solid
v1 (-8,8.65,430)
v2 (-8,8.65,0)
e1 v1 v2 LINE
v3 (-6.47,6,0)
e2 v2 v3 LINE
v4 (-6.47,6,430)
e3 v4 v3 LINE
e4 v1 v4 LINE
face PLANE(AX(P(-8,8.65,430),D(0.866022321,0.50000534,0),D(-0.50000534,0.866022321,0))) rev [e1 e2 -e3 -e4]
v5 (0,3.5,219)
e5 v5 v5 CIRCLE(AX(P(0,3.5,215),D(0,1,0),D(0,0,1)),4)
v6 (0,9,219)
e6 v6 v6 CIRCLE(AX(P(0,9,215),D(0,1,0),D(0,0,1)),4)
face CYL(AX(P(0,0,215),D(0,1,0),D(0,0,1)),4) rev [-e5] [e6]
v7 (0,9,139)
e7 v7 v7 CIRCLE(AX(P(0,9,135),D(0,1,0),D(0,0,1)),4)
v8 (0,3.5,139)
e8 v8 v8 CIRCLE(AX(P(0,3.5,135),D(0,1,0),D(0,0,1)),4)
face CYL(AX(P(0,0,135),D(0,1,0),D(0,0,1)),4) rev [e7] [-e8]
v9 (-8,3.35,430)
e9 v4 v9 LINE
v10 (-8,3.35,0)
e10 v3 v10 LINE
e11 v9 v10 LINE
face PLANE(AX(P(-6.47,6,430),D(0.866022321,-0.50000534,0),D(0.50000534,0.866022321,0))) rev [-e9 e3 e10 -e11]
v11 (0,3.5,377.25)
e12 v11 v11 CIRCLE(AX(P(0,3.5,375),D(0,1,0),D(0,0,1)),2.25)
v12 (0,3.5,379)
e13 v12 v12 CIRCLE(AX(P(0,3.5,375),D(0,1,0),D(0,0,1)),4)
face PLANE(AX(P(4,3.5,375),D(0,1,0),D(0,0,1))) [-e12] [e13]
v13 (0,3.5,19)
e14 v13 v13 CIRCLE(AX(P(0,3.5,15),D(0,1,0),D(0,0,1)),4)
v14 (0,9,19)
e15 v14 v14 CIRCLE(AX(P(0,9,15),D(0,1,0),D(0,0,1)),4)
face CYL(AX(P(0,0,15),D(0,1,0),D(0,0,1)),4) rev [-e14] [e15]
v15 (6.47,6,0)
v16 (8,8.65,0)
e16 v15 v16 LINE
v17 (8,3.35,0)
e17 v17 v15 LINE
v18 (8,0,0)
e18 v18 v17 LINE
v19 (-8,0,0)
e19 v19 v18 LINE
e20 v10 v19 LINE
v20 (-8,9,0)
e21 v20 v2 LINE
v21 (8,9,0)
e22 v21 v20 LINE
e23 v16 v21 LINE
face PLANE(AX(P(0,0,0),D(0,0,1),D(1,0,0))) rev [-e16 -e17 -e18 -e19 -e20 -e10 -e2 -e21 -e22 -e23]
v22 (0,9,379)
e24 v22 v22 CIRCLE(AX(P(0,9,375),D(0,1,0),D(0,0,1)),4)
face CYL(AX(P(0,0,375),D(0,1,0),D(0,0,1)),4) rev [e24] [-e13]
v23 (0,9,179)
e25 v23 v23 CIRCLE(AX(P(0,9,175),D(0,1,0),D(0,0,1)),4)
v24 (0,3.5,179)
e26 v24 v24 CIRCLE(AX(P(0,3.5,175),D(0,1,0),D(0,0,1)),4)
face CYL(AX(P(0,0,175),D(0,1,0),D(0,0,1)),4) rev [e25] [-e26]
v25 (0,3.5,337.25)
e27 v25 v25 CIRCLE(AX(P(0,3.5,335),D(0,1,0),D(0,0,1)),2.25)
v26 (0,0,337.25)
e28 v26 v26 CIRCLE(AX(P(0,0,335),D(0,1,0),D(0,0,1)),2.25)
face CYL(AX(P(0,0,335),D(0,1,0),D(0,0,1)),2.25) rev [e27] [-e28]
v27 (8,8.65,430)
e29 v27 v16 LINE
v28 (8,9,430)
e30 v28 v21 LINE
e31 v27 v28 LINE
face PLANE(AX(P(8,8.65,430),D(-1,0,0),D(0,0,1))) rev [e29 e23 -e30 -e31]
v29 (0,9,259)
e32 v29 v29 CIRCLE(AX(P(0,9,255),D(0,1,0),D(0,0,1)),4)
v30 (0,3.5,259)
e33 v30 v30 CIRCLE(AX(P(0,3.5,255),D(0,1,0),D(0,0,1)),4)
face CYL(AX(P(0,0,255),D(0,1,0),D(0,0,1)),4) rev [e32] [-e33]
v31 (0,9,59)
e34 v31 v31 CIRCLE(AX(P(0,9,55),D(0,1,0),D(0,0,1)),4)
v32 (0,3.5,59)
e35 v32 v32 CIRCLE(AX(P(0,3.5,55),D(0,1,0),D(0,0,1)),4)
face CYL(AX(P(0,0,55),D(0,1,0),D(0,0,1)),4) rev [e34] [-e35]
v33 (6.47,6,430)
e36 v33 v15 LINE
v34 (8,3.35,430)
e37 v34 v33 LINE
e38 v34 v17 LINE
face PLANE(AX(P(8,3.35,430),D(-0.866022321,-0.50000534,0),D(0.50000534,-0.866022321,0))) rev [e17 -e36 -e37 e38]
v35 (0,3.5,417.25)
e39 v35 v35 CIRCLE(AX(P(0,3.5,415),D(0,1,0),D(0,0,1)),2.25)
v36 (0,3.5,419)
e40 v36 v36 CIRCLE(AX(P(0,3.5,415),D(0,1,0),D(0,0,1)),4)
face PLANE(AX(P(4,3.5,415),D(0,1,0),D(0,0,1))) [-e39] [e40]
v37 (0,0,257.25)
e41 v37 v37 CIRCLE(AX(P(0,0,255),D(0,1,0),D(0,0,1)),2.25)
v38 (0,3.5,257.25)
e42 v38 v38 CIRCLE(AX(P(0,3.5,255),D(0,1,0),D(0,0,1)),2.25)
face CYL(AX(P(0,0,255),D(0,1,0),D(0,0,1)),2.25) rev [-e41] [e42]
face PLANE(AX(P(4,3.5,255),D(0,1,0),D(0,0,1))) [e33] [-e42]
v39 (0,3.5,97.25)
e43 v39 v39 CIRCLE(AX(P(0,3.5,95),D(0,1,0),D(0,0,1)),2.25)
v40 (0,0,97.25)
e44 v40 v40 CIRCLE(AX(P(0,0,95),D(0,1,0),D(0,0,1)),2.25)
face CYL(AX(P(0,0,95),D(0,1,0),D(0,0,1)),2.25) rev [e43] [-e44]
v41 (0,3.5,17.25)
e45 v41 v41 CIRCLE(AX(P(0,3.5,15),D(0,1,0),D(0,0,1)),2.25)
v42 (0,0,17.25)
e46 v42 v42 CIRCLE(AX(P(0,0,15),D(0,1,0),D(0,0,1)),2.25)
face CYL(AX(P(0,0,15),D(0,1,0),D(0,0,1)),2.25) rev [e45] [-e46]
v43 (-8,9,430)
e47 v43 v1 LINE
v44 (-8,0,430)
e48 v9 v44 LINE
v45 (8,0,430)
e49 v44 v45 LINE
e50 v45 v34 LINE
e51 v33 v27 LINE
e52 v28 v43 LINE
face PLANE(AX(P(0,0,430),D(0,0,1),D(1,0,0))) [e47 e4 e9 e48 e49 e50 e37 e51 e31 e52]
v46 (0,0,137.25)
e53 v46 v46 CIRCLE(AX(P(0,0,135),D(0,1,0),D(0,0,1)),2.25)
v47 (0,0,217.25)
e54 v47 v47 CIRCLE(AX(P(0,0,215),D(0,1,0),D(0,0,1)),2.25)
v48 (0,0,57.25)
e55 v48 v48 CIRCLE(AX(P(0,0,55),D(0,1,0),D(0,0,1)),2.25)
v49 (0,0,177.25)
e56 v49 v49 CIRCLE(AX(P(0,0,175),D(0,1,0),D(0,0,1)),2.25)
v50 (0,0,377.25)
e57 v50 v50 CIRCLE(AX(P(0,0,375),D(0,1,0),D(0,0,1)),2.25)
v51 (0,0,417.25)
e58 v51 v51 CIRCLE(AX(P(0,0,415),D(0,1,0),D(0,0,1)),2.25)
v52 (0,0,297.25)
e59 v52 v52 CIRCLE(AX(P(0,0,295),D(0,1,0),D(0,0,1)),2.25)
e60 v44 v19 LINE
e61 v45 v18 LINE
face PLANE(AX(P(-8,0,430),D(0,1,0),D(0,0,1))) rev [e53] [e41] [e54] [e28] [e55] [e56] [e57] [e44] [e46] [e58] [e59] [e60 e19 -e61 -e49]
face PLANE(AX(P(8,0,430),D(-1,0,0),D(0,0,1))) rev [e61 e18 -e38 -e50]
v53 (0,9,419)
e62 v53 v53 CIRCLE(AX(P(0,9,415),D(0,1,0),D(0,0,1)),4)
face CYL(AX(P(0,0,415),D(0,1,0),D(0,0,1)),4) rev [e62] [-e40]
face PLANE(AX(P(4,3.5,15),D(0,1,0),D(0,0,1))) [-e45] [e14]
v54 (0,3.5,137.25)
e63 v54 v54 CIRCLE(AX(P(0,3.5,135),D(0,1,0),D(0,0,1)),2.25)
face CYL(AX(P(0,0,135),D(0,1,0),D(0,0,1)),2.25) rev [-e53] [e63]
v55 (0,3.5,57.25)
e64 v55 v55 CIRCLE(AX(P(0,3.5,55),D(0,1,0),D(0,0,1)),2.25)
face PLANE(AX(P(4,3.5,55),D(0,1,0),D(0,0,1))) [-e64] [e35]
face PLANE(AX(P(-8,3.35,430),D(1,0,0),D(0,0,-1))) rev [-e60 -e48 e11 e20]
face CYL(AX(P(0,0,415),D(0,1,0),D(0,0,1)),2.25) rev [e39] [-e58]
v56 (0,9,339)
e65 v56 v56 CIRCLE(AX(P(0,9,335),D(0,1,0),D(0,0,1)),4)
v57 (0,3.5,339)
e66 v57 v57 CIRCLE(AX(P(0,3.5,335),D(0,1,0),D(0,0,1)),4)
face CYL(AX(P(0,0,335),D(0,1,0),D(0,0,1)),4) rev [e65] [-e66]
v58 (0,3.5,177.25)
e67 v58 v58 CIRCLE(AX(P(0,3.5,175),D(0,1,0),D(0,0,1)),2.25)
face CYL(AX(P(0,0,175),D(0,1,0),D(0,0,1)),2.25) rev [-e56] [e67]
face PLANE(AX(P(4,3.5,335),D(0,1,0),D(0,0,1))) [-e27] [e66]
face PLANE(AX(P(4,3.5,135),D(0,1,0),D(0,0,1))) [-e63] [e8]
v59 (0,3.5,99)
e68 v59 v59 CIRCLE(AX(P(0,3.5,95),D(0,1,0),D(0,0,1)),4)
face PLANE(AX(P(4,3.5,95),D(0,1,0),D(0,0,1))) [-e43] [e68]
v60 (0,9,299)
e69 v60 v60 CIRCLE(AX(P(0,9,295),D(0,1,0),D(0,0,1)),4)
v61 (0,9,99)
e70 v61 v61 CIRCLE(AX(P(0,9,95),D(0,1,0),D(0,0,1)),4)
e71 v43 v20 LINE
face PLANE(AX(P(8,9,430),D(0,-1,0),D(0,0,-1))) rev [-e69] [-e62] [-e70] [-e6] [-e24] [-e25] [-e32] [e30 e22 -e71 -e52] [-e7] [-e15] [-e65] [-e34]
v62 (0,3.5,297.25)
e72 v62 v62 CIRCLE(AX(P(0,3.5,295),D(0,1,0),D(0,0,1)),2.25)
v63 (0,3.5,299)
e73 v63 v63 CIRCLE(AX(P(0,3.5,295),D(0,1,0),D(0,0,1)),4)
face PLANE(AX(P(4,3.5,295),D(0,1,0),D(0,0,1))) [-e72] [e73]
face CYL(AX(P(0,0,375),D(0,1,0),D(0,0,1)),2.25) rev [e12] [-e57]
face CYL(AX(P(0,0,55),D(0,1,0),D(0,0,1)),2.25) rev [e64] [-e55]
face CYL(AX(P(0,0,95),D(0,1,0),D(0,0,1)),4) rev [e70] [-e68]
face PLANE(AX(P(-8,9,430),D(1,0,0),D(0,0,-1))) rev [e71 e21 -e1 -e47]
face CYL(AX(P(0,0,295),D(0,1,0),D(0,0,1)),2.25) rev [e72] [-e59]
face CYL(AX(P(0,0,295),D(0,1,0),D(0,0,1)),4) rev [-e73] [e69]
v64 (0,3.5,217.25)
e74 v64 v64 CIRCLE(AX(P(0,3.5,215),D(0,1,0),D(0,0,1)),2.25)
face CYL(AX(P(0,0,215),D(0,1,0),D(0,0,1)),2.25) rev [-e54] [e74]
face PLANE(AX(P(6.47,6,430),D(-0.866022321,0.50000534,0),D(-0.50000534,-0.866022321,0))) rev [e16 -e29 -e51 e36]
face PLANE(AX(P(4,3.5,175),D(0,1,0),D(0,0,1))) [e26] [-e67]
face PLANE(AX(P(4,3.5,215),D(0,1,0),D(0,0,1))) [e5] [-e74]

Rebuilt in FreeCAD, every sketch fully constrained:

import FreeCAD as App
import Part
import Sketcher

doc = App.newDocument("Part")
body = doc.addObject("PartDesign::Body", "Body")

# Sketch on XY plane
sketch1 = body.newObject("Sketcher::SketchObject", "Sketch")
sketch1.AttachmentSupport = (doc.getObject("XY_Plane"), [""])
sketch1.MapMode = "FlatFace"
sketch1.addGeometry([
    Part.LineSegment(App.Vector(-8, 0, 0), App.Vector(8, 0, 0)),  # 0
    Part.LineSegment(App.Vector(8, 0, 0), App.Vector(8, 3.35, 0)),  # 1
    Part.LineSegment(App.Vector(8, 3.35, 0), App.Vector(6.47, 6, 0)),  # 2
    Part.LineSegment(App.Vector(6.47, 6, 0), App.Vector(8, 8.65, 0)),  # 3
    Part.LineSegment(App.Vector(8, 8.65, 0), App.Vector(8, 9, 0)),  # 4
    Part.LineSegment(App.Vector(8, 9, 0), App.Vector(-8, 9, 0)),  # 5
    Part.LineSegment(App.Vector(-8, 9, 0), App.Vector(-8, 8.65, 0)),  # 6
    Part.LineSegment(App.Vector(-8, 8.65, 0), App.Vector(-6.47, 6, 0)),  # 7
    Part.LineSegment(App.Vector(-6.47, 6, 0), App.Vector(-8, 3.35, 0)),  # 8
    Part.LineSegment(App.Vector(-8, 3.35, 0), App.Vector(-8, 0, 0)),  # 9
], False)
sketch1.addConstraint([
    Sketcher.Constraint("Coincident", 0, 2, 1, 1),
    Sketcher.Constraint("Coincident", 1, 2, 2, 1),
    Sketcher.Constraint("Coincident", 2, 2, 3, 1),
    Sketcher.Constraint("Coincident", 3, 2, 4, 1),
    Sketcher.Constraint("Coincident", 4, 2, 5, 1),
    Sketcher.Constraint("Coincident", 5, 2, 6, 1),
    Sketcher.Constraint("Coincident", 6, 2, 7, 1),
    Sketcher.Constraint("Coincident", 7, 2, 8, 1),
    Sketcher.Constraint("Coincident", 8, 2, 9, 1),
    Sketcher.Constraint("Coincident", 9, 2, 0, 1),
    Sketcher.Constraint("Horizontal", 0),
    Sketcher.Constraint("Vertical", 1),
    Sketcher.Constraint("Vertical", 4),
    Sketcher.Constraint("Horizontal", 5),
    Sketcher.Constraint("Vertical", 6),
    Sketcher.Constraint("Vertical", 9),
    Sketcher.Constraint("Symmetric", 0, 2, 9, 2, -1, 1),
    Sketcher.Constraint("Symmetric", 3, 2, 6, 2, -2),
    Sketcher.Constraint("Symmetric", 2, 2, 7, 2, -2),
    Sketcher.Constraint("Parallel", 2, 7),
    Sketcher.Constraint("Parallel", 3, 8),
    Sketcher.Constraint("Vertical", 1, 2, 3, 2),
    Sketcher.Constraint("DistanceX", 0, 1, 0, 2, 16.0),
    Sketcher.Constraint("DistanceY", -1, 1, 2, 2, 6.0),
    Sketcher.Constraint("DistanceY", -1, 1, 4, 2, 9.0),
    Sketcher.Constraint("DistanceY", 1, 1, 1, 2, 3.35),
    Sketcher.Constraint("DistanceX", -1, 1, 2, 2, 6.47),
])
pad1 = body.newObject("PartDesign::Pad", "Pad")
pad1.Profile = sketch1
pad1.Length = 430

# Sketch on XY plane
sketch2 = body.newObject("Sketcher::SketchObject", "Sketch001")
sketch2.AttachmentSupport = (doc.getObject("XY_Plane"), [""])
sketch2.MapMode = "FlatFace"
sketch2.AttachmentOffset = App.Placement(App.Vector(0, 0, 15), App.Rotation())
sketch2.addGeometry([
    Part.LineSegment(App.Vector(4, 9, 0), App.Vector(0, 9, 0)),  # 0
    Part.LineSegment(App.Vector(0, 9, 0), App.Vector(0, 0, 0)),  # 1
    Part.LineSegment(App.Vector(0, 0, 0), App.Vector(2.2, 0, 0)),  # 2
    Part.LineSegment(App.Vector(2.2, 0, 0), App.Vector(2.2, 3.5, 0)),  # 3
    Part.LineSegment(App.Vector(2.2, 3.5, 0), App.Vector(4, 3.5, 0)),  # 4
    Part.LineSegment(App.Vector(4, 3.5, 0), App.Vector(4, 9, 0)),  # 5
], False)
sketch2.addConstraint([
    Sketcher.Constraint("Coincident", 0, 2, 1, 1),
    Sketcher.Constraint("Coincident", 1, 2, 2, 1),
    Sketcher.Constraint("Coincident", 2, 2, 3, 1),
    Sketcher.Constraint("Coincident", 3, 2, 4, 1),
    Sketcher.Constraint("Coincident", 4, 2, 5, 1),
    Sketcher.Constraint("Coincident", 5, 2, 0, 1),
    Sketcher.Constraint("Horizontal", 0),
    Sketcher.Constraint("Vertical", 1),
    Sketcher.Constraint("Horizontal", 2),
    Sketcher.Constraint("Vertical", 3),
    Sketcher.Constraint("Horizontal", 4),
    Sketcher.Constraint("Vertical", 5),
    Sketcher.Constraint("Coincident", 1, 2, -1, 1),
    Sketcher.Constraint("DistanceX", 0, 2, 0, 1, 4.0),
    Sketcher.Constraint("DistanceY", 1, 2, 1, 1, 9.0),
    Sketcher.Constraint("DistanceY", 3, 1, 3, 2, 3.5),
    Sketcher.Constraint("DistanceX", 2, 1, 2, 2, 2.25),
])
groove = body.newObject("PartDesign::Groove", "Groove")
groove.Profile = sketch2
groove.ReferenceAxis = (sketch2, ["V_Axis"])
groove.Angle = 360

# Sketch on XY plane
sketch3 = body.newObject("Sketcher::SketchObject", "Sketch002")
sketch3.AttachmentSupport = (doc.getObject("XY_Plane"), [""])
sketch3.MapMode = "FlatFace"
sketch3.AttachmentOffset = App.Placement(App.Vector(0, 0, 55), App.Rotation())
sketch3.addGeometry([
    Part.LineSegment(App.Vector(4, 9, 0), App.Vector(0, 9, 0)),  # 0
    Part.LineSegment(App.Vector(0, 9, 0), App.Vector(0, 0, 0)),  # 1
    Part.LineSegment(App.Vector(0, 0, 0), App.Vector(2.2, 0, 0)),  # 2
    Part.LineSegment(App.Vector(2.2, 0, 0), App.Vector(2.2, 3.5, 0)),  # 3
    Part.LineSegment(App.Vector(2.2, 3.5, 0), App.Vector(4, 3.5, 0)),  # 4
    Part.LineSegment(App.Vector(4, 3.5, 0), App.Vector(4, 9, 0)),  # 5
], False)
sketch3.addConstraint([
    Sketcher.Constraint("Coincident", 0, 2, 1, 1),
    Sketcher.Constraint("Coincident", 1, 2, 2, 1),
    Sketcher.Constraint("Coincident", 2, 2, 3, 1),
    Sketcher.Constraint("Coincident", 3, 2, 4, 1),
    Sketcher.Constraint("Coincident", 4, 2, 5, 1),
    Sketcher.Constraint("Coincident", 5, 2, 0, 1),
    Sketcher.Constraint("Horizontal", 0),
    Sketcher.Constraint("Vertical", 1),
    Sketcher.Constraint("Horizontal", 2),
    Sketcher.Constraint("Vertical", 3),
    Sketcher.Constraint("Horizontal", 4),
    Sketcher.Constraint("Vertical", 5),
    Sketcher.Constraint("Coincident", 1, 2, -1, 1),
    Sketcher.Constraint("DistanceX", 0, 2, 0, 1, 4.0),
    Sketcher.Constraint("DistanceY", 1, 2, 1, 1, 9.0),
    Sketcher.Constraint("DistanceY", 3, 1, 3, 2, 3.5),
    Sketcher.Constraint("DistanceX", 2, 1, 2, 2, 2.25),
])
groove2 = body.newObject("PartDesign::Groove", "Groove001")
groove2.Profile = sketch3
groove2.ReferenceAxis = (sketch3, ["V_Axis"])
groove2.Angle = 360

# Sketch on XY plane
sketch4 = body.newObject("Sketcher::SketchObject", "Sketch003")
sketch4.AttachmentSupport = (doc.getObject("XY_Plane"), [""])
sketch4.MapMode = "FlatFace"
sketch4.AttachmentOffset = App.Placement(App.Vector(0, 0, 95), App.Rotation())
sketch4.addGeometry([
    Part.LineSegment(App.Vector(4, 9, 0), App.Vector(0, 9, 0)),  # 0
    Part.LineSegment(App.Vector(0, 9, 0), App.Vector(0, 0, 0)),  # 1
    Part.LineSegment(App.Vector(0, 0, 0), App.Vector(2.2, 0, 0)),  # 2
    Part.LineSegment(App.Vector(2.2, 0, 0), App.Vector(2.2, 3.5, 0)),  # 3
    Part.LineSegment(App.Vector(2.2, 3.5, 0), App.Vector(4, 3.5, 0)),  # 4
    Part.LineSegment(App.Vector(4, 3.5, 0), App.Vector(4, 9, 0)),  # 5
], False)
sketch4.addConstraint([
    Sketcher.Constraint("Coincident", 0, 2, 1, 1),
    Sketcher.Constraint("Coincident", 1, 2, 2, 1),
    Sketcher.Constraint("Coincident", 2, 2, 3, 1),
    Sketcher.Constraint("Coincident", 3, 2, 4, 1),
    Sketcher.Constraint("Coincident", 4, 2, 5, 1),
    Sketcher.Constraint("Coincident", 5, 2, 0, 1),
    Sketcher.Constraint("Horizontal", 0),
    Sketcher.Constraint("Vertical", 1),
    Sketcher.Constraint("Horizontal", 2),
    Sketcher.Constraint("Vertical", 3),
    Sketcher.Constraint("Horizontal", 4),
    Sketcher.Constraint("Vertical", 5),
    Sketcher.Constraint("Coincident", 1, 2, -1, 1),
    Sketcher.Constraint("DistanceX", 0, 2, 0, 1, 4.0),
    Sketcher.Constraint("DistanceY", 1, 2, 1, 1, 9.0),
    Sketcher.Constraint("DistanceY", 3, 1, 3, 2, 3.5),
    Sketcher.Constraint("DistanceX", 2, 1, 2, 2, 2.25),
])
groove3 = body.newObject("PartDesign::Groove", "Groove002")
groove3.Profile = sketch4
groove3.ReferenceAxis = (sketch4, ["V_Axis"])
groove3.Angle = 360

# Sketch on XY plane
sketch5 = body.newObject("Sketcher::SketchObject", "Sketch004")
sketch5.AttachmentSupport = (doc.getObject("XY_Plane"), [""])
sketch5.MapMode = "FlatFace"
sketch5.AttachmentOffset = App.Placement(App.Vector(0, 0, 135), App.Rotation())
sketch5.addGeometry([
    Part.LineSegment(App.Vector(4, 9, 0), App.Vector(0, 9, 0)),  # 0
    Part.LineSegment(App.Vector(0, 9, 0), App.Vector(0, 0, 0)),  # 1
    Part.LineSegment(App.Vector(0, 0, 0), App.Vector(2.2, 0, 0)),  # 2
    Part.LineSegment(App.Vector(2.2, 0, 0), App.Vector(2.2, 3.5, 0)),  # 3
    Part.LineSegment(App.Vector(2.2, 3.5, 0), App.Vector(4, 3.5, 0)),  # 4
    Part.LineSegment(App.Vector(4, 3.5, 0), App.Vector(4, 9, 0)),  # 5
], False)
sketch5.addConstraint([
    Sketcher.Constraint("Coincident", 0, 2, 1, 1),
    Sketcher.Constraint("Coincident", 1, 2, 2, 1),
    Sketcher.Constraint("Coincident", 2, 2, 3, 1),
    Sketcher.Constraint("Coincident", 3, 2, 4, 1),
    Sketcher.Constraint("Coincident", 4, 2, 5, 1),
    Sketcher.Constraint("Coincident", 5, 2, 0, 1),
    Sketcher.Constraint("Horizontal", 0),
    Sketcher.Constraint("Vertical", 1),
    Sketcher.Constraint("Horizontal", 2),
    Sketcher.Constraint("Vertical", 3),
    Sketcher.Constraint("Horizontal", 4),
    Sketcher.Constraint("Vertical", 5),
    Sketcher.Constraint("Coincident", 1, 2, -1, 1),
    Sketcher.Constraint("DistanceX", 0, 2, 0, 1, 4.0),
    Sketcher.Constraint("DistanceY", 1, 2, 1, 1, 9.0),
    Sketcher.Constraint("DistanceY", 3, 1, 3, 2, 3.5),
    Sketcher.Constraint("DistanceX", 2, 1, 2, 2, 2.25),
])
groove4 = body.newObject("PartDesign::Groove", "Groove003")
groove4.Profile = sketch5
groove4.ReferenceAxis = (sketch5, ["V_Axis"])
groove4.Angle = 360

# Sketch on XY plane
sketch6 = body.newObject("Sketcher::SketchObject", "Sketch005")
sketch6.AttachmentSupport = (doc.getObject("XY_Plane"), [""])
sketch6.MapMode = "FlatFace"
sketch6.AttachmentOffset = App.Placement(App.Vector(0, 0, 175), App.Rotation())
sketch6.addGeometry([
    Part.LineSegment(App.Vector(4, 9, 0), App.Vector(0, 9, 0)),  # 0
    Part.LineSegment(App.Vector(0, 9, 0), App.Vector(0, 0, 0)),  # 1
    Part.LineSegment(App.Vector(0, 0, 0), App.Vector(2.2, 0, 0)),  # 2
    Part.LineSegment(App.Vector(2.2, 0, 0), App.Vector(2.2, 3.5, 0)),  # 3
    Part.LineSegment(App.Vector(2.2, 3.5, 0), App.Vector(4, 3.5, 0)),  # 4
    Part.LineSegment(App.Vector(4, 3.5, 0), App.Vector(4, 9, 0)),  # 5
], False)
sketch6.addConstraint([
    Sketcher.Constraint("Coincident", 0, 2, 1, 1),
    Sketcher.Constraint("Coincident", 1, 2, 2, 1),
    Sketcher.Constraint("Coincident", 2, 2, 3, 1),
    Sketcher.Constraint("Coincident", 3, 2, 4, 1),
    Sketcher.Constraint("Coincident", 4, 2, 5, 1),
    Sketcher.Constraint("Coincident", 5, 2, 0, 1),
    Sketcher.Constraint("Horizontal", 0),
    Sketcher.Constraint("Vertical", 1),
    Sketcher.Constraint("Horizontal", 2),
    Sketcher.Constraint("Vertical", 3),
    Sketcher.Constraint("Horizontal", 4),
    Sketcher.Constraint("Vertical", 5),
    Sketcher.Constraint("Coincident", 1, 2, -1, 1),
    Sketcher.Constraint("DistanceX", 0, 2, 0, 1, 4.0),
    Sketcher.Constraint("DistanceY", 1, 2, 1, 1, 9.0),
    Sketcher.Constraint("DistanceY", 3, 1, 3, 2, 3.5),
    Sketcher.Constraint("DistanceX", 2, 1, 2, 2, 2.25),
])
groove5 = body.newObject("PartDesign::Groove", "Groove004")
groove5.Profile = sketch6
groove5.ReferenceAxis = (sketch6, ["V_Axis"])
groove5.Angle = 360

# Sketch on XY plane
sketch7 = body.newObject("Sketcher::SketchObject", "Sketch006")
sketch7.AttachmentSupport = (doc.getObject("XY_Plane"), [""])
sketch7.MapMode = "FlatFace"
sketch7.AttachmentOffset = App.Placement(App.Vector(0, 0, 215), App.Rotation())
sketch7.addGeometry([
    Part.LineSegment(App.Vector(4, 9, 0), App.Vector(0, 9, 0)),  # 0
    Part.LineSegment(App.Vector(0, 9, 0), App.Vector(0, 0, 0)),  # 1
    Part.LineSegment(App.Vector(0, 0, 0), App.Vector(2.2, 0, 0)),  # 2
    Part.LineSegment(App.Vector(2.2, 0, 0), App.Vector(2.2, 3.5, 0)),  # 3
    Part.LineSegment(App.Vector(2.2, 3.5, 0), App.Vector(4, 3.5, 0)),  # 4
    Part.LineSegment(App.Vector(4, 3.5, 0), App.Vector(4, 9, 0)),  # 5
], False)
sketch7.addConstraint([
    Sketcher.Constraint("Coincident", 0, 2, 1, 1),
    Sketcher.Constraint("Coincident", 1, 2, 2, 1),
    Sketcher.Constraint("Coincident", 2, 2, 3, 1),
    Sketcher.Constraint("Coincident", 3, 2, 4, 1),
    Sketcher.Constraint("Coincident", 4, 2, 5, 1),
    Sketcher.Constraint("Coincident", 5, 2, 0, 1),
    Sketcher.Constraint("Horizontal", 0),
    Sketcher.Constraint("Vertical", 1),
    Sketcher.Constraint("Horizontal", 2),
    Sketcher.Constraint("Vertical", 3),
    Sketcher.Constraint("Horizontal", 4),
    Sketcher.Constraint("Vertical", 5),
    Sketcher.Constraint("Coincident", 1, 2, -1, 1),
    Sketcher.Constraint("DistanceX", 0, 2, 0, 1, 4.0),
    Sketcher.Constraint("DistanceY", 1, 2, 1, 1, 9.0),
    Sketcher.Constraint("DistanceY", 3, 1, 3, 2, 3.5),
    Sketcher.Constraint("DistanceX", 2, 1, 2, 2, 2.25),
])
groove6 = body.newObject("PartDesign::Groove", "Groove005")
groove6.Profile = sketch7
groove6.ReferenceAxis = (sketch7, ["V_Axis"])
groove6.Angle = 360

# Sketch on XY plane
sketch8 = body.newObject("Sketcher::SketchObject", "Sketch007")
sketch8.AttachmentSupport = (doc.getObject("XY_Plane"), [""])
sketch8.MapMode = "FlatFace"
sketch8.AttachmentOffset = App.Placement(App.Vector(0, 0, 255), App.Rotation())
sketch8.addGeometry([
    Part.LineSegment(App.Vector(4, 9, 0), App.Vector(0, 9, 0)),  # 0
    Part.LineSegment(App.Vector(0, 9, 0), App.Vector(0, 0, 0)),  # 1
    Part.LineSegment(App.Vector(0, 0, 0), App.Vector(2.2, 0, 0)),  # 2
    Part.LineSegment(App.Vector(2.2, 0, 0), App.Vector(2.2, 3.5, 0)),  # 3
    Part.LineSegment(App.Vector(2.2, 3.5, 0), App.Vector(4, 3.5, 0)),  # 4
    Part.LineSegment(App.Vector(4, 3.5, 0), App.Vector(4, 9, 0)),  # 5
], False)
sketch8.addConstraint([
    Sketcher.Constraint("Coincident", 0, 2, 1, 1),
    Sketcher.Constraint("Coincident", 1, 2, 2, 1),
    Sketcher.Constraint("Coincident", 2, 2, 3, 1),
    Sketcher.Constraint("Coincident", 3, 2, 4, 1),
    Sketcher.Constraint("Coincident", 4, 2, 5, 1),
    Sketcher.Constraint("Coincident", 5, 2, 0, 1),
    Sketcher.Constraint("Horizontal", 0),
    Sketcher.Constraint("Vertical", 1),
    Sketcher.Constraint("Horizontal", 2),
    Sketcher.Constraint("Vertical", 3),
    Sketcher.Constraint("Horizontal", 4),
    Sketcher.Constraint("Vertical", 5),
    Sketcher.Constraint("Coincident", 1, 2, -1, 1),
    Sketcher.Constraint("DistanceX", 0, 2, 0, 1, 4.0),
    Sketcher.Constraint("DistanceY", 1, 2, 1, 1, 9.0),
    Sketcher.Constraint("DistanceY", 3, 1, 3, 2, 3.5),
    Sketcher.Constraint("DistanceX", 2, 1, 2, 2, 2.25),
])
groove7 = body.newObject("PartDesign::Groove", "Groove006")
groove7.Profile = sketch8
groove7.ReferenceAxis = (sketch8, ["V_Axis"])
groove7.Angle = 360

# Sketch on XY plane
sketch9 = body.newObject("Sketcher::SketchObject", "Sketch008")
sketch9.AttachmentSupport = (doc.getObject("XY_Plane"), [""])
sketch9.MapMode = "FlatFace"
sketch9.AttachmentOffset = App.Placement(App.Vector(0, 0, 295), App.Rotation())
sketch9.addGeometry([
    Part.LineSegment(App.Vector(4, 9, 0), App.Vector(0, 9, 0)),  # 0
    Part.LineSegment(App.Vector(0, 9, 0), App.Vector(0, 0, 0)),  # 1
    Part.LineSegment(App.Vector(0, 0, 0), App.Vector(2.2, 0, 0)),  # 2
    Part.LineSegment(App.Vector(2.2, 0, 0), App.Vector(2.2, 3.5, 0)),  # 3
    Part.LineSegment(App.Vector(2.2, 3.5, 0), App.Vector(4, 3.5, 0)),  # 4
    Part.LineSegment(App.Vector(4, 3.5, 0), App.Vector(4, 9, 0)),  # 5
], False)
sketch9.addConstraint([
    Sketcher.Constraint("Coincident", 0, 2, 1, 1),
    Sketcher.Constraint("Coincident", 1, 2, 2, 1),
    Sketcher.Constraint("Coincident", 2, 2, 3, 1),
    Sketcher.Constraint("Coincident", 3, 2, 4, 1),
    Sketcher.Constraint("Coincident", 4, 2, 5, 1),
    Sketcher.Constraint("Coincident", 5, 2, 0, 1),
    Sketcher.Constraint("Horizontal", 0),
    Sketcher.Constraint("Vertical", 1),
    Sketcher.Constraint("Horizontal", 2),
    Sketcher.Constraint("Vertical", 3),
    Sketcher.Constraint("Horizontal", 4),
    Sketcher.Constraint("Vertical", 5),
    Sketcher.Constraint("Coincident", 1, 2, -1, 1),
    Sketcher.Constraint("DistanceX", 0, 2, 0, 1, 4.0),
    Sketcher.Constraint("DistanceY", 1, 2, 1, 1, 9.0),
    Sketcher.Constraint("DistanceY", 3, 1, 3, 2, 3.5),
    Sketcher.Constraint("DistanceX", 2, 1, 2, 2, 2.25),
])
groove8 = body.newObject("PartDesign::Groove", "Groove007")
groove8.Profile = sketch9
groove8.ReferenceAxis = (sketch9, ["V_Axis"])
groove8.Angle = 360

# Sketch on XY plane
sketch10 = body.newObject("Sketcher::SketchObject", "Sketch009")
sketch10.AttachmentSupport = (doc.getObject("XY_Plane"), [""])
sketch10.MapMode = "FlatFace"
sketch10.AttachmentOffset = App.Placement(App.Vector(0, 0, 335), App.Rotation())
sketch10.addGeometry([
    Part.LineSegment(App.Vector(4, 9, 0), App.Vector(0, 9, 0)),  # 0
    Part.LineSegment(App.Vector(0, 9, 0), App.Vector(0, 0, 0)),  # 1
    Part.LineSegment(App.Vector(0, 0, 0), App.Vector(2.2, 0, 0)),  # 2
    Part.LineSegment(App.Vector(2.2, 0, 0), App.Vector(2.2, 3.5, 0)),  # 3
    Part.LineSegment(App.Vector(2.2, 3.5, 0), App.Vector(4, 3.5, 0)),  # 4
    Part.LineSegment(App.Vector(4, 3.5, 0), App.Vector(4, 9, 0)),  # 5
], False)
sketch10.addConstraint([
    Sketcher.Constraint("Coincident", 0, 2, 1, 1),
    Sketcher.Constraint("Coincident", 1, 2, 2, 1),
    Sketcher.Constraint("Coincident", 2, 2, 3, 1),
    Sketcher.Constraint("Coincident", 3, 2, 4, 1),
    Sketcher.Constraint("Coincident", 4, 2, 5, 1),
    Sketcher.Constraint("Coincident", 5, 2, 0, 1),
    Sketcher.Constraint("Horizontal", 0),
    Sketcher.Constraint("Vertical", 1),
    Sketcher.Constraint("Horizontal", 2),
    Sketcher.Constraint("Vertical", 3),
    Sketcher.Constraint("Horizontal", 4),
    Sketcher.Constraint("Vertical", 5),
    Sketcher.Constraint("Coincident", 1, 2, -1, 1),
    Sketcher.Constraint("DistanceX", 0, 2, 0, 1, 4.0),
    Sketcher.Constraint("DistanceY", 1, 2, 1, 1, 9.0),
    Sketcher.Constraint("DistanceY", 3, 1, 3, 2, 3.5),
    Sketcher.Constraint("DistanceX", 2, 1, 2, 2, 2.25),
])
groove9 = body.newObject("PartDesign::Groove", "Groove008")
groove9.Profile = sketch10
groove9.ReferenceAxis = (sketch10, ["V_Axis"])
groove9.Angle = 360

# Sketch on XY plane
sketch11 = body.newObject("Sketcher::SketchObject", "Sketch010")
sketch11.AttachmentSupport = (doc.getObject("XY_Plane"), [""])
sketch11.MapMode = "FlatFace"
sketch11.AttachmentOffset = App.Placement(App.Vector(0, 0, 375), App.Rotation())
sketch11.addGeometry([
    Part.LineSegment(App.Vector(4, 9, 0), App.Vector(0, 9, 0)),  # 0
    Part.LineSegment(App.Vector(0, 9, 0), App.Vector(0, 0, 0)),  # 1
    Part.LineSegment(App.Vector(0, 0, 0), App.Vector(2.2, 0, 0)),  # 2
    Part.LineSegment(App.Vector(2.2, 0, 0), App.Vector(2.2, 3.5, 0)),  # 3
    Part.LineSegment(App.Vector(2.2, 3.5, 0), App.Vector(4, 3.5, 0)),  # 4
    Part.LineSegment(App.Vector(4, 3.5, 0), App.Vector(4, 9, 0)),  # 5
], False)
sketch11.addConstraint([
    Sketcher.Constraint("Coincident", 0, 2, 1, 1),
    Sketcher.Constraint("Coincident", 1, 2, 2, 1),
    Sketcher.Constraint("Coincident", 2, 2, 3, 1),
    Sketcher.Constraint("Coincident", 3, 2, 4, 1),
    Sketcher.Constraint("Coincident", 4, 2, 5, 1),
    Sketcher.Constraint("Coincident", 5, 2, 0, 1),
    Sketcher.Constraint("Horizontal", 0),
    Sketcher.Constraint("Vertical", 1),
    Sketcher.Constraint("Horizontal", 2),
    Sketcher.Constraint("Vertical", 3),
    Sketcher.Constraint("Horizontal", 4),
    Sketcher.Constraint("Vertical", 5),
    Sketcher.Constraint("Coincident", 1, 2, -1, 1),
    Sketcher.Constraint("DistanceX", 0, 2, 0, 1, 4.0),
    Sketcher.Constraint("DistanceY", 1, 2, 1, 1, 9.0),
    Sketcher.Constraint("DistanceY", 3, 1, 3, 2, 3.5),
    Sketcher.Constraint("DistanceX", 2, 1, 2, 2, 2.25),
])
groove10 = body.newObject("PartDesign::Groove", "Groove009")
groove10.Profile = sketch11
groove10.ReferenceAxis = (sketch11, ["V_Axis"])
groove10.Angle = 360

# Sketch on XY plane
sketch12 = body.newObject("Sketcher::SketchObject", "Sketch011")
sketch12.AttachmentSupport = (doc.getObject("XY_Plane"), [""])
sketch12.MapMode = "FlatFace"
sketch12.AttachmentOffset = App.Placement(App.Vector(0, 0, 415), App.Rotation())
sketch12.addGeometry([
    Part.LineSegment(App.Vector(4, 9, 0), App.Vector(0, 9, 0)),  # 0
    Part.LineSegment(App.Vector(0, 9, 0), App.Vector(0, 0, 0)),  # 1
    Part.LineSegment(App.Vector(0, 0, 0), App.Vector(2.2, 0, 0)),  # 2
    Part.LineSegment(App.Vector(2.2, 0, 0), App.Vector(2.2, 3.5, 0)),  # 3
    Part.LineSegment(App.Vector(2.2, 3.5, 0), App.Vector(4, 3.5, 0)),  # 4
    Part.LineSegment(App.Vector(4, 3.5, 0), App.Vector(4, 9, 0)),  # 5
], False)
sketch12.addConstraint([
    Sketcher.Constraint("Coincident", 0, 2, 1, 1),
    Sketcher.Constraint("Coincident", 1, 2, 2, 1),
    Sketcher.Constraint("Coincident", 2, 2, 3, 1),
    Sketcher.Constraint("Coincident", 3, 2, 4, 1),
    Sketcher.Constraint("Coincident", 4, 2, 5, 1),
    Sketcher.Constraint("Coincident", 5, 2, 0, 1),
    Sketcher.Constraint("Horizontal", 0),
    Sketcher.Constraint("Vertical", 1),
    Sketcher.Constraint("Horizontal", 2),
    Sketcher.Constraint("Vertical", 3),
    Sketcher.Constraint("Horizontal", 4),
    Sketcher.Constraint("Vertical", 5),
    Sketcher.Constraint("Coincident", 1, 2, -1, 1),
    Sketcher.Constraint("DistanceX", 0, 2, 0, 1, 4.0),
    Sketcher.Constraint("DistanceY", 1, 2, 1, 1, 9.0),
    Sketcher.Constraint("DistanceY", 3, 1, 3, 2, 3.5),
    Sketcher.Constraint("DistanceX", 2, 1, 2, 2, 2.25),
])
groove11 = body.newObject("PartDesign::Groove", "Groove010")
groove11.Profile = sketch12
groove11.ReferenceAxis = (sketch12, ["V_Axis"])
groove11.Angle = 360

doc.recompute()
